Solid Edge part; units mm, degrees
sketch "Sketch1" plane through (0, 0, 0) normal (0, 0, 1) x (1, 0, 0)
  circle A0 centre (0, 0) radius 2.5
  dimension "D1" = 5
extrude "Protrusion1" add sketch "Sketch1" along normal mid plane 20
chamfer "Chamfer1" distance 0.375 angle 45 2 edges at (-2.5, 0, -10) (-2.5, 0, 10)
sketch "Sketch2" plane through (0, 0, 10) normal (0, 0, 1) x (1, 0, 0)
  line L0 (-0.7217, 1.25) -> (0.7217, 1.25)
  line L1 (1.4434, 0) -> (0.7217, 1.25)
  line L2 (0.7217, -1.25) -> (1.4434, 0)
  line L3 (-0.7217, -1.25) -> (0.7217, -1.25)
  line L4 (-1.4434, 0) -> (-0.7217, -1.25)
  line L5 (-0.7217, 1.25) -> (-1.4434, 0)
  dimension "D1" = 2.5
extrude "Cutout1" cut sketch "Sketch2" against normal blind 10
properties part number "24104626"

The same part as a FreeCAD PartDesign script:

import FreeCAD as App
import Part
import Sketcher
Q = App.Units.Quantity


def edges_at(feature, points):
    """Names of the edges that pass closest to the given points."""
    edges = feature.Shape.Edges
    near = lambda p: min(range(len(edges)), key=lambda i: edges[i].distToShape(Part.Vertex(*p))[0])
    return sorted({f"Edge{near(p) + 1}" for p in points})


def add_polygon(sketch, points):
    """Adds a closed chain of lines whose ends are joined by coincident constraints."""
    first, n = sketch.GeometryCount, len(points)
    for a, b in zip(points, points[1:] + points[:1]):
        sketch.addGeometry(Part.LineSegment(App.Vector(*a, 0), App.Vector(*b, 0)), False)
    for i in range(n):
        sketch.addConstraint(Sketcher.Constraint("Coincident", first + i, 2, first + (i + 1) % n, 1))

doc = App.newDocument("Part")
body = doc.addObject("PartDesign::Body", "Body")

# Sketch on XY plane
sketch1 = body.newObject("Sketcher::SketchObject", "Sketch")
sketch1.AttachmentSupport = (doc.getObject("XY_Plane"), [""])
sketch1.MapMode = "FlatFace"
sketch1.addGeometry(Part.Circle(App.Vector(0, 0, 0), App.Vector(0, 0, 1), 2.5), False)
sketch1.addConstraint([
    Sketcher.Constraint("Coincident", 0, 3, -1, 1),
    Sketcher.Constraint("Diameter", 0, 5.0),
])
pad1 = body.newObject("PartDesign::Pad", "Pad")
pad1.Profile = sketch1
pad1.Length = 20
pad1.Midplane = True
doc.recompute()

chamfer = body.newObject("PartDesign::Chamfer", "Chamfer")
chamfer.Base = (pad1, edges_at(pad1, [(-2.5, 0, -10), (-2.5, 0, 10)]))
chamfer.Size = 0.375

# Sketch on XY plane
sketch2 = body.newObject("Sketcher::SketchObject", "Sketch001")
sketch2.AttachmentSupport = (doc.getObject("XY_Plane"), [""])
sketch2.MapMode = "FlatFace"
sketch2.AttachmentOffset = App.Placement(App.Vector(0, 0, 10), App.Rotation())
add_polygon(sketch2, [(0.7217, 1.25), (-0.7217, 1.25), (-1.4434, 0), (-0.7217, -1.25), (0.7217, -1.25), (1.4434, 0)])  # lines 0-5
sketch2.addConstraint([
    Sketcher.Constraint("Horizontal", 0),
    Sketcher.Constraint("Horizontal", 3),
    Sketcher.Constraint("Symmetric", 0, 2, 3, 2, -1, 1),
    Sketcher.Constraint("Symmetric", 1, 2, 4, 2, -1, 1),
    Sketcher.Constraint("PointOnObject", 1, 2, -1),
    Sketcher.Constraint("Parallel", 2, 5),
    Sketcher.Constraint("Vertical", 0, 2, 2, 2),
    Sketcher.Constraint("Angle", 1, Q("-120.0004 deg")),
    Sketcher.Constraint("DistanceY", 2, 2, 0, 2, 2.5),
    Sketcher.Constraint("DistanceX", 0, 2, 0, 1, 1.4434),
])
pocket1 = body.newObject("PartDesign::Pocket", "Pocket")
pocket1.Profile = sketch2
pocket1.Length = 10

doc.recompute()
